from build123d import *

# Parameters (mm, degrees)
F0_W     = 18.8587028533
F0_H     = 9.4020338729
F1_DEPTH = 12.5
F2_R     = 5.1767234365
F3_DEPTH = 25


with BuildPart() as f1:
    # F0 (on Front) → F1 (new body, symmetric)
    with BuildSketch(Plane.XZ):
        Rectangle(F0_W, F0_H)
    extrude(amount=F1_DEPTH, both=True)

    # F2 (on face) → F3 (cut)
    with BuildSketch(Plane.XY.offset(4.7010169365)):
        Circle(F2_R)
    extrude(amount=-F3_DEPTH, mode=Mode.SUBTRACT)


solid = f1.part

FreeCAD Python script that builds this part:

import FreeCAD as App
import Part
import Sketcher

V = App.Vector

doc = App.newDocument("Part")
body = doc.addObject("PartDesign::Body", "Body")

# Sketch on XZ plane
sketch1 = doc.addObject("Sketcher::SketchObject", "Sketch")
body.addObject(sketch1)
sketch1.AttachmentSupport = (doc.XZ_Plane, [""])
sketch1.MapMode = "FlatFace"
sketch1.addGeometry([
    Part.LineSegment(V(-9.429351, 4.701017, 0), V(-9.429351, -4.701017, 0)),
    Part.LineSegment(V(-9.429351, -4.701017, 0), V(9.429351, -4.701017, 0)),
    Part.LineSegment(V(9.429351, -4.701017, 0), V(9.429351, 4.701017, 0)),
    Part.LineSegment(V(9.429351, 4.701017, 0), V(-9.429351, 4.701017, 0)),
], False)
sketch1.addConstraint([
    Sketcher.Constraint("Coincident", 0, 2, 1, 1),
    Sketcher.Constraint("Coincident", 1, 2, 2, 1),
    Sketcher.Constraint("Coincident", 2, 2, 3, 1),
    Sketcher.Constraint("Coincident", 3, 2, 0, 1),
    Sketcher.Constraint("Vertical", 0),
    Sketcher.Constraint("Horizontal", 1),
    Sketcher.Constraint("Vertical", 2),
    Sketcher.Constraint("Horizontal", 3),
    Sketcher.Constraint("Symmetric", 0, 2, 2, 2, -1, 1),
    Sketcher.Constraint("DistanceX", 1, 1, 1, 2, 18.858703),
    Sketcher.Constraint("DistanceY", 0, 2, 0, 1, 9.402034),
])
pad1 = doc.addObject("PartDesign::Pad", "Pad")
body.addObject(pad1)
pad1.Profile = sketch1
pad1.Length = 25
pad1.Midplane = True

# Sketch on XY plane
sketch2 = doc.addObject("Sketcher::SketchObject", "Sketch001")
body.addObject(sketch2)
sketch2.AttachmentSupport = (doc.XY_Plane, [""])
sketch2.MapMode = "FlatFace"
sketch2.AttachmentOffset = App.Placement(V(0, 0, 4.701017), App.Rotation())
sketch2.addGeometry(Part.Circle(V(0, 0, 0), V(0, 0, 1), 5.176723), False)
sketch2.addConstraint([
    Sketcher.Constraint("Coincident", 0, 3, -1, 1),
    Sketcher.Constraint("Diameter", 0, 10.353447),
])
pocket1 = doc.addObject("PartDesign::Pocket", "Pocket")
body.addObject(pocket1)
pocket1.Profile = sketch2
pocket1.Length = 25

doc.recompute()
